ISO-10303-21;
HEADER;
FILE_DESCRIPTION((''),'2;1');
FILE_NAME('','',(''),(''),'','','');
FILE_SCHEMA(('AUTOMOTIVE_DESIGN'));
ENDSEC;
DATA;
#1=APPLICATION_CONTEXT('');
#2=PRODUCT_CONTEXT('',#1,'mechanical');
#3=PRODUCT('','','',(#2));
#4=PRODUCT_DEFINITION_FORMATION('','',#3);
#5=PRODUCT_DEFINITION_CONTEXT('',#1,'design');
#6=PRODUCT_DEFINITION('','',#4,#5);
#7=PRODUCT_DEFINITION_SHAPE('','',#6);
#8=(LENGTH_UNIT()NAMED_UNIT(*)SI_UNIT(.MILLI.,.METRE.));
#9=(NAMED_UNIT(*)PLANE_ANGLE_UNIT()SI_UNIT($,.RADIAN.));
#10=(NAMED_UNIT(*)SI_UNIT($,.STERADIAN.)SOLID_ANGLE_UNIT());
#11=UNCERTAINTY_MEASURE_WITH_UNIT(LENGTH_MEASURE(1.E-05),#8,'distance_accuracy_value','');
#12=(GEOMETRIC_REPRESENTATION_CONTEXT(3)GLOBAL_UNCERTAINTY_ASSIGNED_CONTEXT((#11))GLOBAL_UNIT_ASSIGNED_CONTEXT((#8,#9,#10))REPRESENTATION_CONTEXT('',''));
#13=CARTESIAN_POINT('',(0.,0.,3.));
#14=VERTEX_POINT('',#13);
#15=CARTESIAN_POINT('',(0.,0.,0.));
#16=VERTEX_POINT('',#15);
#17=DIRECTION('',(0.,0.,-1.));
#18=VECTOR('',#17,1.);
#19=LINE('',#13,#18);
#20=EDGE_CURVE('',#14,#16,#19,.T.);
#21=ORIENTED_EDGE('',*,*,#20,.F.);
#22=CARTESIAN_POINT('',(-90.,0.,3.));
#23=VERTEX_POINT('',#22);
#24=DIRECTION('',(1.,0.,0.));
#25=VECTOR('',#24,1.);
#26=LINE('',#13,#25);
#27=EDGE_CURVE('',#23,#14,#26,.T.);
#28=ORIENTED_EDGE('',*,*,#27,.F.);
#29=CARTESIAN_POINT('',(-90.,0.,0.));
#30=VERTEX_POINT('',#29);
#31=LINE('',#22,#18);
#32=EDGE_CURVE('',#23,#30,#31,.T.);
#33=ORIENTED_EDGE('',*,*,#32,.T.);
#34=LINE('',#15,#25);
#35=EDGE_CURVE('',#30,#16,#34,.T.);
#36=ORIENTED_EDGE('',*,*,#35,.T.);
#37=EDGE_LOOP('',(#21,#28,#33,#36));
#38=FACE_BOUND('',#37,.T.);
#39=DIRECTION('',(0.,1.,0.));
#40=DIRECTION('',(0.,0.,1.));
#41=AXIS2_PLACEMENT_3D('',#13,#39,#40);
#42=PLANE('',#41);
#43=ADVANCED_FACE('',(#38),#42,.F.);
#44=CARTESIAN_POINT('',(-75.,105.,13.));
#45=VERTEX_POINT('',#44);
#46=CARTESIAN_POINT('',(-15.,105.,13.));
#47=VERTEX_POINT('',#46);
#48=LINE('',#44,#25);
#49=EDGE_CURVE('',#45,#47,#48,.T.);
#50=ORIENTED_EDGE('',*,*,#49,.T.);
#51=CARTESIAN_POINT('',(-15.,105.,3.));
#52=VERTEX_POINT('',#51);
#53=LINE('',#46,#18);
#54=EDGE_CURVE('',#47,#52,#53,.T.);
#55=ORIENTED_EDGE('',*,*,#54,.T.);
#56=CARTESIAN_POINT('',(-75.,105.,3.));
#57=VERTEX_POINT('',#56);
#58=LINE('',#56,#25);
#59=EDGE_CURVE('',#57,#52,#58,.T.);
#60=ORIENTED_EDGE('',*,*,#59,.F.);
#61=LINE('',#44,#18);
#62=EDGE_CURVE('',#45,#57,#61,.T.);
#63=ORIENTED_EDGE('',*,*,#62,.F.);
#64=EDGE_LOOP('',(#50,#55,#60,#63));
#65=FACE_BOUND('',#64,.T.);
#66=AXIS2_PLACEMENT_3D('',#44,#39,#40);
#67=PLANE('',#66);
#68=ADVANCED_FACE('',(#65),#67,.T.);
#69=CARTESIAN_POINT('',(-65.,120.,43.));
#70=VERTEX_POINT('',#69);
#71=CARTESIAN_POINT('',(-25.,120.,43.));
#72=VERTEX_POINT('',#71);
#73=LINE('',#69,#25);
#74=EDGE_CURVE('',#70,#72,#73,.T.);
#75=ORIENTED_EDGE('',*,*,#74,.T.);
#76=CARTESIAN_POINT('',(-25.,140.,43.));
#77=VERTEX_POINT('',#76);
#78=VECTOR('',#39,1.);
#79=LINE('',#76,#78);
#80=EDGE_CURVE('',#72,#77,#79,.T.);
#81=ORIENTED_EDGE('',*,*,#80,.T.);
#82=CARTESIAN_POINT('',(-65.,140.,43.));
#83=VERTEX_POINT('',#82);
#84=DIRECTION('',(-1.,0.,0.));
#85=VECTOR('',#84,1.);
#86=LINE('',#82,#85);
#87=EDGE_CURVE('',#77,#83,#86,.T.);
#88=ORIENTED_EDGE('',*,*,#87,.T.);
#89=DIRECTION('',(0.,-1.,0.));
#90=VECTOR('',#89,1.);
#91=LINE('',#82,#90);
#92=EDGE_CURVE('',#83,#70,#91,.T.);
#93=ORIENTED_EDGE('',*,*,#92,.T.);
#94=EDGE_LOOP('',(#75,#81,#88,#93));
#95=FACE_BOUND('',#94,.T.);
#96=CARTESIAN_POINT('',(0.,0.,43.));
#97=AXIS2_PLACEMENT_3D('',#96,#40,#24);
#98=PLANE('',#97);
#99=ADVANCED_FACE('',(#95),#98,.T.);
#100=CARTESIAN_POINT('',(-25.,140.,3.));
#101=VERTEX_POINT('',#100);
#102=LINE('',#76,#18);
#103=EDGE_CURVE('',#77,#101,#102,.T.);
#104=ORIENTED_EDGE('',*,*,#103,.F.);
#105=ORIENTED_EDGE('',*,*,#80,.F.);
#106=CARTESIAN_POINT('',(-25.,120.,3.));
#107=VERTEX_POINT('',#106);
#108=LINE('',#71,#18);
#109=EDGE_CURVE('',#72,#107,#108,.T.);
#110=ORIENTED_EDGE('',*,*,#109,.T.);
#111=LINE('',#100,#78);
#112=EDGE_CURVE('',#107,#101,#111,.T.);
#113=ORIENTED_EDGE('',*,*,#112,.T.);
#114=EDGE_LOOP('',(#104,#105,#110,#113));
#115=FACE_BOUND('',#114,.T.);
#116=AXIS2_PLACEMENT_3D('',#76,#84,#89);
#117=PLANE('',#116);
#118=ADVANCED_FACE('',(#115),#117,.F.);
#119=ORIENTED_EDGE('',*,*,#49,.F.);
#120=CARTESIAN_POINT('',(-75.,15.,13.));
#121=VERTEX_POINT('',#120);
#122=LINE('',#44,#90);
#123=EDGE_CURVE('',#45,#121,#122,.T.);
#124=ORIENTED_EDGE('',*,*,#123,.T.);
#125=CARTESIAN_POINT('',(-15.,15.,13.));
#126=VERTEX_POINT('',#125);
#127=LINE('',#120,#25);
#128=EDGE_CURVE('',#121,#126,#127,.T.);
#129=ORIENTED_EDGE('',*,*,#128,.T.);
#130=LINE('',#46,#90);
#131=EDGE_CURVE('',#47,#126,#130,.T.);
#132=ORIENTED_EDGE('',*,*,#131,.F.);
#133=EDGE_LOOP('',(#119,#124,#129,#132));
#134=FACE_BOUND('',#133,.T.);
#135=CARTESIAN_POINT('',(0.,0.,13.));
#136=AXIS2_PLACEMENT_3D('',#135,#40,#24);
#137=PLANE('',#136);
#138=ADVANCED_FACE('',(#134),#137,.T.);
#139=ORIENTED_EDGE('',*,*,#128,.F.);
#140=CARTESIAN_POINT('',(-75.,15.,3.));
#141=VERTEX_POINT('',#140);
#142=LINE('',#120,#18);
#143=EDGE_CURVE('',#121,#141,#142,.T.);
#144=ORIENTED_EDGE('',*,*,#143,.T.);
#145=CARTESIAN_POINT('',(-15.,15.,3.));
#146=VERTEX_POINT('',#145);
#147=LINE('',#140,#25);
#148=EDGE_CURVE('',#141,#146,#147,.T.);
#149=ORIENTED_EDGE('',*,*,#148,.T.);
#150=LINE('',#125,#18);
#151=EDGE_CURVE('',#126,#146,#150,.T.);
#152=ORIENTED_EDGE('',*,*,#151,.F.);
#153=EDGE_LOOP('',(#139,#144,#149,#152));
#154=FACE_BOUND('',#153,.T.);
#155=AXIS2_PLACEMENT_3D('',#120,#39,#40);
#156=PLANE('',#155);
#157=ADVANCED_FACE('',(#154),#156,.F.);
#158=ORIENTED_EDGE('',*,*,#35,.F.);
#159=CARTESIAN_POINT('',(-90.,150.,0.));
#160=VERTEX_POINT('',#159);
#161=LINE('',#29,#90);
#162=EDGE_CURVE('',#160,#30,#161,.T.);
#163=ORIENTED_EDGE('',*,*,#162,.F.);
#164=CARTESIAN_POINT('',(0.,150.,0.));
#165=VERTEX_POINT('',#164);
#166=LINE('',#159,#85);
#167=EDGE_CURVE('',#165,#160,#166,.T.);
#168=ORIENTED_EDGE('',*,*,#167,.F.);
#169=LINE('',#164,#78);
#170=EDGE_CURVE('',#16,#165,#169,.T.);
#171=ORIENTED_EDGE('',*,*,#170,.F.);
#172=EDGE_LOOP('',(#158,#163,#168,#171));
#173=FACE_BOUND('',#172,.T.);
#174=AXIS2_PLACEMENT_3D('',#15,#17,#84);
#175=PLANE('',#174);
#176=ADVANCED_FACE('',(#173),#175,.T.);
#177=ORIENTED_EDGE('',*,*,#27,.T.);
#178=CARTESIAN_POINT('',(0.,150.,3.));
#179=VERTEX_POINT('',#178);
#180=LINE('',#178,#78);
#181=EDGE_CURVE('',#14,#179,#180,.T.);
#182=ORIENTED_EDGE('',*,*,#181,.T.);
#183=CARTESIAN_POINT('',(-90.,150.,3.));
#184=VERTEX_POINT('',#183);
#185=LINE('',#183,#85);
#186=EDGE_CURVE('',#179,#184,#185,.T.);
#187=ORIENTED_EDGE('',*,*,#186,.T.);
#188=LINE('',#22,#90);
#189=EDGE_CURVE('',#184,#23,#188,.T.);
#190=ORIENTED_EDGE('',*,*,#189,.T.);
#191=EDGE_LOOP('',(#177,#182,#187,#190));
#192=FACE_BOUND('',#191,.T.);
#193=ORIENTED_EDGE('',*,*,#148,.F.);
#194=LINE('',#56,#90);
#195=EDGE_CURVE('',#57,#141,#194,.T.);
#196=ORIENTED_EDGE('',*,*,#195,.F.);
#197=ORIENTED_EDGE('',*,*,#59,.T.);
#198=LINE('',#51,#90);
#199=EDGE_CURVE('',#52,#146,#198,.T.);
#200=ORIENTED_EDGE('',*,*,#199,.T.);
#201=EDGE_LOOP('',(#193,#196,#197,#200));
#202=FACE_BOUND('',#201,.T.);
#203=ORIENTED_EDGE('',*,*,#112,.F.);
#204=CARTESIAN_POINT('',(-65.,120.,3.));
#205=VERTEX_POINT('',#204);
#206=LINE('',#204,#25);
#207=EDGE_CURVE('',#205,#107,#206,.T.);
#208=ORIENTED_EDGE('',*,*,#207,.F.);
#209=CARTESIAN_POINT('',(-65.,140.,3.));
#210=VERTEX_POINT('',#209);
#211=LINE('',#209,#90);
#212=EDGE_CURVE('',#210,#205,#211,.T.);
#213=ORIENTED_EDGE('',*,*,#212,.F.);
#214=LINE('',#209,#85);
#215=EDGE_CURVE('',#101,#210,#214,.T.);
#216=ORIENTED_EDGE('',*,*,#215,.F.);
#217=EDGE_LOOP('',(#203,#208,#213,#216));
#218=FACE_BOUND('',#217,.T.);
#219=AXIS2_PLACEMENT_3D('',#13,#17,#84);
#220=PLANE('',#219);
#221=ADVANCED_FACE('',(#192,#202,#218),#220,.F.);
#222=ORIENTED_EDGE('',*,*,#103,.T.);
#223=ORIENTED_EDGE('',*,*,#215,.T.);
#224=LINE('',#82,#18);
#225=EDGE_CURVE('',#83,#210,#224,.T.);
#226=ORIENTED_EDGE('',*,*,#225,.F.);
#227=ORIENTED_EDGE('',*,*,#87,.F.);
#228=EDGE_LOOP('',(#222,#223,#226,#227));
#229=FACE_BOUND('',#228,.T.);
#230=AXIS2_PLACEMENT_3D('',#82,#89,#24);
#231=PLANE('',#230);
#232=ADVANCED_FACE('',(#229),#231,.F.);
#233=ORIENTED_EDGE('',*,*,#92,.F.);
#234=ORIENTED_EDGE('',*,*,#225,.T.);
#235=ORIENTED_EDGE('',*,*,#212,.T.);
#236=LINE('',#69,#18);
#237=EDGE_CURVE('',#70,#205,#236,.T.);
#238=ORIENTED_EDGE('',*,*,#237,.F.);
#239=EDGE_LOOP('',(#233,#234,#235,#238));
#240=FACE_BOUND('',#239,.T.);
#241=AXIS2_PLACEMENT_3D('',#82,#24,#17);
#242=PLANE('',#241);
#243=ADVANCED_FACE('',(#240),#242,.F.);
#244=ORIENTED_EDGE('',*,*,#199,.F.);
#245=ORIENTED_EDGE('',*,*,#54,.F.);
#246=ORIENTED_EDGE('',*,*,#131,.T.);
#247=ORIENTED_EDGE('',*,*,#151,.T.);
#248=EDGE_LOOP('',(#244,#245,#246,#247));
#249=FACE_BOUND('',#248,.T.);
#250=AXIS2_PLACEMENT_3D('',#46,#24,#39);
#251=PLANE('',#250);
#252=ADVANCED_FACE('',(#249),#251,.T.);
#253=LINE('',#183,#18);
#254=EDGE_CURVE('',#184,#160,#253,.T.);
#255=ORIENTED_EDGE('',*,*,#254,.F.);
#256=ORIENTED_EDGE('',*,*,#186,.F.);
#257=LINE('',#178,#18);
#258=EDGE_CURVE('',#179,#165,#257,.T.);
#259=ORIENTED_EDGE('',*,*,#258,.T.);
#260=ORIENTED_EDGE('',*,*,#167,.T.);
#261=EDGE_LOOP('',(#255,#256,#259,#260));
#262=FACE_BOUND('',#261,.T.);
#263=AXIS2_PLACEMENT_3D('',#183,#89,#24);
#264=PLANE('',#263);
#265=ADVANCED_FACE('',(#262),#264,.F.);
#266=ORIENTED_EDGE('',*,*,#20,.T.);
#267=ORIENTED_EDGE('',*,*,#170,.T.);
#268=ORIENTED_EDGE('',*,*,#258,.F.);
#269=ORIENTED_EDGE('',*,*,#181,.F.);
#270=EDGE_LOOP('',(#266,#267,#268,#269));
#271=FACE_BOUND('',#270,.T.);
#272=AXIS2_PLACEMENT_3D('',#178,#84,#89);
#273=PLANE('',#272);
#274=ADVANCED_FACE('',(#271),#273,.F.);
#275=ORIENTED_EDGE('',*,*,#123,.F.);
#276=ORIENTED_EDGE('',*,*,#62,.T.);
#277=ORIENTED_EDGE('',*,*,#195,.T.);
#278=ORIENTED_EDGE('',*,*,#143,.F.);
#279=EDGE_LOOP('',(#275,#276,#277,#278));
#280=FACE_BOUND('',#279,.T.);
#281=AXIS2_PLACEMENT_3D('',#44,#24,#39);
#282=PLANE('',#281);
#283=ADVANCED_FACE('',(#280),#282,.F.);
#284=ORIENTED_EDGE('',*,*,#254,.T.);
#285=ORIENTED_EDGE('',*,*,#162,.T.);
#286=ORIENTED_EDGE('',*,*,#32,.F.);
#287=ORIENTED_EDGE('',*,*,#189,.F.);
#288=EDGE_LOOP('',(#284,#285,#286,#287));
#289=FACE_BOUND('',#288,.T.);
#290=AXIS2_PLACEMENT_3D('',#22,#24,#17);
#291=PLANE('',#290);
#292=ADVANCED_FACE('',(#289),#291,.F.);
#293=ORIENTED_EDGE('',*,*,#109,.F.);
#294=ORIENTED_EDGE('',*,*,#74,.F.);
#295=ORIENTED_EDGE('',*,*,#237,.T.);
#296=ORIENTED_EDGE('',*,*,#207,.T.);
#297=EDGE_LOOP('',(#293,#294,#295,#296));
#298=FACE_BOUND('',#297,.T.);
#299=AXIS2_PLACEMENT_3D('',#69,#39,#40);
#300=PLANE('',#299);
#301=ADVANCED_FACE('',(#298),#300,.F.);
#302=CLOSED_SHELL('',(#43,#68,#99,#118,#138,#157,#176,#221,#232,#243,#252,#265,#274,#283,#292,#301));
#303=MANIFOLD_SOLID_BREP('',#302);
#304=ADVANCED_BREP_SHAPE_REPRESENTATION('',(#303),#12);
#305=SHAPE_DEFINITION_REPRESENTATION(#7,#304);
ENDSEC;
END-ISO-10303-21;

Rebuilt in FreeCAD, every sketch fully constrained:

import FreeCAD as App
import Part
import Sketcher
Q = App.Units.Quantity

doc = App.newDocument("Part")
body = doc.addObject("PartDesign::Body", "Body")

# Sketch on XY plane
sketch1 = body.newObject("Sketcher::SketchObject", "Sketch")
sketch1.AttachmentSupport = (doc.getObject("XY_Plane"), [""])
sketch1.MapMode = "FlatFace"
sketch1.addGeometry(Part.LineSegment(App.Vector(-90, 0, 0), App.Vector(0, 0, 0)), False)
sketch1.addGeometry(Part.LineSegment(App.Vector(0, 0, 0), App.Vector(0, 150, 0)), False)
sketch1.addGeometry(Part.LineSegment(App.Vector(0, 150, 0), App.Vector(-90, 150, 0)), False)
sketch1.addGeometry(Part.LineSegment(App.Vector(-90, 150, 0), App.Vector(-90, 0, 0)), False)
sketch1.addConstraint(Sketcher.Constraint("Coincident", 0, 2, 1, 1))
sketch1.addConstraint(Sketcher.Constraint("Coincident", 1, 2, 2, 1))
sketch1.addConstraint(Sketcher.Constraint("Coincident", 2, 2, 3, 1))
sketch1.addConstraint(Sketcher.Constraint("Coincident", 3, 2, 0, 1))
sketch1.addConstraint(Sketcher.Constraint("Horizontal", 0))
sketch1.addConstraint(Sketcher.Constraint("Vertical", 1))
sketch1.addConstraint(Sketcher.Constraint("Horizontal", 2))
sketch1.addConstraint(Sketcher.Constraint("Vertical", 3))
sketch1.addConstraint(Sketcher.Constraint("Coincident", 0, 2, -1, 1))
sketch1.addConstraint(Sketcher.Constraint("DistanceX", 0, 1, 0, 2, Q("90 mm")))
sketch1.addConstraint(Sketcher.Constraint("DistanceY", 1, 1, 1, 2, Q("150 mm")))
pad1 = body.newObject("PartDesign::Pad", "Pad")
pad1.Profile = sketch1
pad1.Length = 3

# Sketch on XY plane
sketch2 = body.newObject("Sketcher::SketchObject", "Sketch001")
sketch2.AttachmentSupport = (doc.getObject("XY_Plane"), [""])
sketch2.MapMode = "FlatFace"
sketch2.AttachmentOffset = App.Placement(App.Vector(0, 0, 3), App.Rotation())
sketch2.addGeometry(Part.LineSegment(App.Vector(-75, 105, 0), App.Vector(-75, 15, 0)), False)
sketch2.addGeometry(Part.LineSegment(App.Vector(-75, 15, 0), App.Vector(-15, 15, 0)), False)
sketch2.addGeometry(Part.LineSegment(App.Vector(-15, 15, 0), App.Vector(-15, 105, 0)), False)
sketch2.addGeometry(Part.LineSegment(App.Vector(-15, 105, 0), App.Vector(-75, 105, 0)), False)
sketch2.addConstraint(Sketcher.Constraint("Coincident", 0, 2, 1, 1))
sketch2.addConstraint(Sketcher.Constraint("Coincident", 1, 2, 2, 1))
sketch2.addConstraint(Sketcher.Constraint("Coincident", 2, 2, 3, 1))
sketch2.addConstraint(Sketcher.Constraint("Coincident", 3, 2, 0, 1))
sketch2.addConstraint(Sketcher.Constraint("Vertical", 0))
sketch2.addConstraint(Sketcher.Constraint("Horizontal", 1))
sketch2.addConstraint(Sketcher.Constraint("Vertical", 2))
sketch2.addConstraint(Sketcher.Constraint("Horizontal", 3))
sketch2.addConstraint(Sketcher.Constraint("DistanceX", 1, 1, 1, 2, Q("60 mm")))
sketch2.addConstraint(Sketcher.Constraint("DistanceY", 0, 2, 0, 1, Q("90 mm")))
sketch2.addConstraint(Sketcher.Constraint("DistanceX", 0, 2, -1, 1, Q("75 mm")))
sketch2.addConstraint(Sketcher.Constraint("DistanceY", -1, 1, 0, 2, Q("15 mm")))
pad2 = body.newObject("PartDesign::Pad", "Pad001")
pad2.Profile = sketch2
pad2.Length = 10

# Sketch on XY plane
sketch3 = body.newObject("Sketcher::SketchObject", "Sketch002")
sketch3.AttachmentSupport = (doc.getObject("XY_Plane"), [""])
sketch3.MapMode = "FlatFace"
sketch3.AttachmentOffset = App.Placement(App.Vector(0, 0, 3), App.Rotation())
sketch3.addGeometry(Part.LineSegment(App.Vector(-65, 140, 0), App.Vector(-65, 120, 0)), False)
sketch3.addGeometry(Part.LineSegment(App.Vector(-65, 120, 0), App.Vector(-25, 120, 0)), False)
sketch3.addGeometry(Part.LineSegment(App.Vector(-25, 120, 0), App.Vector(-25, 140, 0)), False)
sketch3.addGeometry(Part.LineSegment(App.Vector(-25, 140, 0), App.Vector(-65, 140, 0)), False)
sketch3.addConstraint(Sketcher.Constraint("Coincident", 0, 2, 1, 1))
sketch3.addConstraint(Sketcher.Constraint("Coincident", 1, 2, 2, 1))
sketch3.addConstraint(Sketcher.Constraint("Coincident", 2, 2, 3, 1))
sketch3.addConstraint(Sketcher.Constraint("Coincident", 3, 2, 0, 1))
sketch3.addConstraint(Sketcher.Constraint("Vertical", 0))
sketch3.addConstraint(Sketcher.Constraint("Horizontal", 1))
sketch3.addConstraint(Sketcher.Constraint("Vertical", 2))
sketch3.addConstraint(Sketcher.Constraint("Horizontal", 3))
sketch3.addConstraint(Sketcher.Constraint("DistanceX", 1, 1, 1, 2, Q("40 mm")))
sketch3.addConstraint(Sketcher.Constraint("DistanceY", 0, 2, 0, 1, Q("20 mm")))
sketch3.addConstraint(Sketcher.Constraint("DistanceX", 0, 2, -1, 1, Q("65 mm")))
sketch3.addConstraint(Sketcher.Constraint("DistanceY", -1, 1, 0, 2, Q("120 mm")))
pad3 = body.newObject("PartDesign::Pad", "Pad002")
pad3.Profile = sketch3
pad3.Length = 40

doc.recompute()
